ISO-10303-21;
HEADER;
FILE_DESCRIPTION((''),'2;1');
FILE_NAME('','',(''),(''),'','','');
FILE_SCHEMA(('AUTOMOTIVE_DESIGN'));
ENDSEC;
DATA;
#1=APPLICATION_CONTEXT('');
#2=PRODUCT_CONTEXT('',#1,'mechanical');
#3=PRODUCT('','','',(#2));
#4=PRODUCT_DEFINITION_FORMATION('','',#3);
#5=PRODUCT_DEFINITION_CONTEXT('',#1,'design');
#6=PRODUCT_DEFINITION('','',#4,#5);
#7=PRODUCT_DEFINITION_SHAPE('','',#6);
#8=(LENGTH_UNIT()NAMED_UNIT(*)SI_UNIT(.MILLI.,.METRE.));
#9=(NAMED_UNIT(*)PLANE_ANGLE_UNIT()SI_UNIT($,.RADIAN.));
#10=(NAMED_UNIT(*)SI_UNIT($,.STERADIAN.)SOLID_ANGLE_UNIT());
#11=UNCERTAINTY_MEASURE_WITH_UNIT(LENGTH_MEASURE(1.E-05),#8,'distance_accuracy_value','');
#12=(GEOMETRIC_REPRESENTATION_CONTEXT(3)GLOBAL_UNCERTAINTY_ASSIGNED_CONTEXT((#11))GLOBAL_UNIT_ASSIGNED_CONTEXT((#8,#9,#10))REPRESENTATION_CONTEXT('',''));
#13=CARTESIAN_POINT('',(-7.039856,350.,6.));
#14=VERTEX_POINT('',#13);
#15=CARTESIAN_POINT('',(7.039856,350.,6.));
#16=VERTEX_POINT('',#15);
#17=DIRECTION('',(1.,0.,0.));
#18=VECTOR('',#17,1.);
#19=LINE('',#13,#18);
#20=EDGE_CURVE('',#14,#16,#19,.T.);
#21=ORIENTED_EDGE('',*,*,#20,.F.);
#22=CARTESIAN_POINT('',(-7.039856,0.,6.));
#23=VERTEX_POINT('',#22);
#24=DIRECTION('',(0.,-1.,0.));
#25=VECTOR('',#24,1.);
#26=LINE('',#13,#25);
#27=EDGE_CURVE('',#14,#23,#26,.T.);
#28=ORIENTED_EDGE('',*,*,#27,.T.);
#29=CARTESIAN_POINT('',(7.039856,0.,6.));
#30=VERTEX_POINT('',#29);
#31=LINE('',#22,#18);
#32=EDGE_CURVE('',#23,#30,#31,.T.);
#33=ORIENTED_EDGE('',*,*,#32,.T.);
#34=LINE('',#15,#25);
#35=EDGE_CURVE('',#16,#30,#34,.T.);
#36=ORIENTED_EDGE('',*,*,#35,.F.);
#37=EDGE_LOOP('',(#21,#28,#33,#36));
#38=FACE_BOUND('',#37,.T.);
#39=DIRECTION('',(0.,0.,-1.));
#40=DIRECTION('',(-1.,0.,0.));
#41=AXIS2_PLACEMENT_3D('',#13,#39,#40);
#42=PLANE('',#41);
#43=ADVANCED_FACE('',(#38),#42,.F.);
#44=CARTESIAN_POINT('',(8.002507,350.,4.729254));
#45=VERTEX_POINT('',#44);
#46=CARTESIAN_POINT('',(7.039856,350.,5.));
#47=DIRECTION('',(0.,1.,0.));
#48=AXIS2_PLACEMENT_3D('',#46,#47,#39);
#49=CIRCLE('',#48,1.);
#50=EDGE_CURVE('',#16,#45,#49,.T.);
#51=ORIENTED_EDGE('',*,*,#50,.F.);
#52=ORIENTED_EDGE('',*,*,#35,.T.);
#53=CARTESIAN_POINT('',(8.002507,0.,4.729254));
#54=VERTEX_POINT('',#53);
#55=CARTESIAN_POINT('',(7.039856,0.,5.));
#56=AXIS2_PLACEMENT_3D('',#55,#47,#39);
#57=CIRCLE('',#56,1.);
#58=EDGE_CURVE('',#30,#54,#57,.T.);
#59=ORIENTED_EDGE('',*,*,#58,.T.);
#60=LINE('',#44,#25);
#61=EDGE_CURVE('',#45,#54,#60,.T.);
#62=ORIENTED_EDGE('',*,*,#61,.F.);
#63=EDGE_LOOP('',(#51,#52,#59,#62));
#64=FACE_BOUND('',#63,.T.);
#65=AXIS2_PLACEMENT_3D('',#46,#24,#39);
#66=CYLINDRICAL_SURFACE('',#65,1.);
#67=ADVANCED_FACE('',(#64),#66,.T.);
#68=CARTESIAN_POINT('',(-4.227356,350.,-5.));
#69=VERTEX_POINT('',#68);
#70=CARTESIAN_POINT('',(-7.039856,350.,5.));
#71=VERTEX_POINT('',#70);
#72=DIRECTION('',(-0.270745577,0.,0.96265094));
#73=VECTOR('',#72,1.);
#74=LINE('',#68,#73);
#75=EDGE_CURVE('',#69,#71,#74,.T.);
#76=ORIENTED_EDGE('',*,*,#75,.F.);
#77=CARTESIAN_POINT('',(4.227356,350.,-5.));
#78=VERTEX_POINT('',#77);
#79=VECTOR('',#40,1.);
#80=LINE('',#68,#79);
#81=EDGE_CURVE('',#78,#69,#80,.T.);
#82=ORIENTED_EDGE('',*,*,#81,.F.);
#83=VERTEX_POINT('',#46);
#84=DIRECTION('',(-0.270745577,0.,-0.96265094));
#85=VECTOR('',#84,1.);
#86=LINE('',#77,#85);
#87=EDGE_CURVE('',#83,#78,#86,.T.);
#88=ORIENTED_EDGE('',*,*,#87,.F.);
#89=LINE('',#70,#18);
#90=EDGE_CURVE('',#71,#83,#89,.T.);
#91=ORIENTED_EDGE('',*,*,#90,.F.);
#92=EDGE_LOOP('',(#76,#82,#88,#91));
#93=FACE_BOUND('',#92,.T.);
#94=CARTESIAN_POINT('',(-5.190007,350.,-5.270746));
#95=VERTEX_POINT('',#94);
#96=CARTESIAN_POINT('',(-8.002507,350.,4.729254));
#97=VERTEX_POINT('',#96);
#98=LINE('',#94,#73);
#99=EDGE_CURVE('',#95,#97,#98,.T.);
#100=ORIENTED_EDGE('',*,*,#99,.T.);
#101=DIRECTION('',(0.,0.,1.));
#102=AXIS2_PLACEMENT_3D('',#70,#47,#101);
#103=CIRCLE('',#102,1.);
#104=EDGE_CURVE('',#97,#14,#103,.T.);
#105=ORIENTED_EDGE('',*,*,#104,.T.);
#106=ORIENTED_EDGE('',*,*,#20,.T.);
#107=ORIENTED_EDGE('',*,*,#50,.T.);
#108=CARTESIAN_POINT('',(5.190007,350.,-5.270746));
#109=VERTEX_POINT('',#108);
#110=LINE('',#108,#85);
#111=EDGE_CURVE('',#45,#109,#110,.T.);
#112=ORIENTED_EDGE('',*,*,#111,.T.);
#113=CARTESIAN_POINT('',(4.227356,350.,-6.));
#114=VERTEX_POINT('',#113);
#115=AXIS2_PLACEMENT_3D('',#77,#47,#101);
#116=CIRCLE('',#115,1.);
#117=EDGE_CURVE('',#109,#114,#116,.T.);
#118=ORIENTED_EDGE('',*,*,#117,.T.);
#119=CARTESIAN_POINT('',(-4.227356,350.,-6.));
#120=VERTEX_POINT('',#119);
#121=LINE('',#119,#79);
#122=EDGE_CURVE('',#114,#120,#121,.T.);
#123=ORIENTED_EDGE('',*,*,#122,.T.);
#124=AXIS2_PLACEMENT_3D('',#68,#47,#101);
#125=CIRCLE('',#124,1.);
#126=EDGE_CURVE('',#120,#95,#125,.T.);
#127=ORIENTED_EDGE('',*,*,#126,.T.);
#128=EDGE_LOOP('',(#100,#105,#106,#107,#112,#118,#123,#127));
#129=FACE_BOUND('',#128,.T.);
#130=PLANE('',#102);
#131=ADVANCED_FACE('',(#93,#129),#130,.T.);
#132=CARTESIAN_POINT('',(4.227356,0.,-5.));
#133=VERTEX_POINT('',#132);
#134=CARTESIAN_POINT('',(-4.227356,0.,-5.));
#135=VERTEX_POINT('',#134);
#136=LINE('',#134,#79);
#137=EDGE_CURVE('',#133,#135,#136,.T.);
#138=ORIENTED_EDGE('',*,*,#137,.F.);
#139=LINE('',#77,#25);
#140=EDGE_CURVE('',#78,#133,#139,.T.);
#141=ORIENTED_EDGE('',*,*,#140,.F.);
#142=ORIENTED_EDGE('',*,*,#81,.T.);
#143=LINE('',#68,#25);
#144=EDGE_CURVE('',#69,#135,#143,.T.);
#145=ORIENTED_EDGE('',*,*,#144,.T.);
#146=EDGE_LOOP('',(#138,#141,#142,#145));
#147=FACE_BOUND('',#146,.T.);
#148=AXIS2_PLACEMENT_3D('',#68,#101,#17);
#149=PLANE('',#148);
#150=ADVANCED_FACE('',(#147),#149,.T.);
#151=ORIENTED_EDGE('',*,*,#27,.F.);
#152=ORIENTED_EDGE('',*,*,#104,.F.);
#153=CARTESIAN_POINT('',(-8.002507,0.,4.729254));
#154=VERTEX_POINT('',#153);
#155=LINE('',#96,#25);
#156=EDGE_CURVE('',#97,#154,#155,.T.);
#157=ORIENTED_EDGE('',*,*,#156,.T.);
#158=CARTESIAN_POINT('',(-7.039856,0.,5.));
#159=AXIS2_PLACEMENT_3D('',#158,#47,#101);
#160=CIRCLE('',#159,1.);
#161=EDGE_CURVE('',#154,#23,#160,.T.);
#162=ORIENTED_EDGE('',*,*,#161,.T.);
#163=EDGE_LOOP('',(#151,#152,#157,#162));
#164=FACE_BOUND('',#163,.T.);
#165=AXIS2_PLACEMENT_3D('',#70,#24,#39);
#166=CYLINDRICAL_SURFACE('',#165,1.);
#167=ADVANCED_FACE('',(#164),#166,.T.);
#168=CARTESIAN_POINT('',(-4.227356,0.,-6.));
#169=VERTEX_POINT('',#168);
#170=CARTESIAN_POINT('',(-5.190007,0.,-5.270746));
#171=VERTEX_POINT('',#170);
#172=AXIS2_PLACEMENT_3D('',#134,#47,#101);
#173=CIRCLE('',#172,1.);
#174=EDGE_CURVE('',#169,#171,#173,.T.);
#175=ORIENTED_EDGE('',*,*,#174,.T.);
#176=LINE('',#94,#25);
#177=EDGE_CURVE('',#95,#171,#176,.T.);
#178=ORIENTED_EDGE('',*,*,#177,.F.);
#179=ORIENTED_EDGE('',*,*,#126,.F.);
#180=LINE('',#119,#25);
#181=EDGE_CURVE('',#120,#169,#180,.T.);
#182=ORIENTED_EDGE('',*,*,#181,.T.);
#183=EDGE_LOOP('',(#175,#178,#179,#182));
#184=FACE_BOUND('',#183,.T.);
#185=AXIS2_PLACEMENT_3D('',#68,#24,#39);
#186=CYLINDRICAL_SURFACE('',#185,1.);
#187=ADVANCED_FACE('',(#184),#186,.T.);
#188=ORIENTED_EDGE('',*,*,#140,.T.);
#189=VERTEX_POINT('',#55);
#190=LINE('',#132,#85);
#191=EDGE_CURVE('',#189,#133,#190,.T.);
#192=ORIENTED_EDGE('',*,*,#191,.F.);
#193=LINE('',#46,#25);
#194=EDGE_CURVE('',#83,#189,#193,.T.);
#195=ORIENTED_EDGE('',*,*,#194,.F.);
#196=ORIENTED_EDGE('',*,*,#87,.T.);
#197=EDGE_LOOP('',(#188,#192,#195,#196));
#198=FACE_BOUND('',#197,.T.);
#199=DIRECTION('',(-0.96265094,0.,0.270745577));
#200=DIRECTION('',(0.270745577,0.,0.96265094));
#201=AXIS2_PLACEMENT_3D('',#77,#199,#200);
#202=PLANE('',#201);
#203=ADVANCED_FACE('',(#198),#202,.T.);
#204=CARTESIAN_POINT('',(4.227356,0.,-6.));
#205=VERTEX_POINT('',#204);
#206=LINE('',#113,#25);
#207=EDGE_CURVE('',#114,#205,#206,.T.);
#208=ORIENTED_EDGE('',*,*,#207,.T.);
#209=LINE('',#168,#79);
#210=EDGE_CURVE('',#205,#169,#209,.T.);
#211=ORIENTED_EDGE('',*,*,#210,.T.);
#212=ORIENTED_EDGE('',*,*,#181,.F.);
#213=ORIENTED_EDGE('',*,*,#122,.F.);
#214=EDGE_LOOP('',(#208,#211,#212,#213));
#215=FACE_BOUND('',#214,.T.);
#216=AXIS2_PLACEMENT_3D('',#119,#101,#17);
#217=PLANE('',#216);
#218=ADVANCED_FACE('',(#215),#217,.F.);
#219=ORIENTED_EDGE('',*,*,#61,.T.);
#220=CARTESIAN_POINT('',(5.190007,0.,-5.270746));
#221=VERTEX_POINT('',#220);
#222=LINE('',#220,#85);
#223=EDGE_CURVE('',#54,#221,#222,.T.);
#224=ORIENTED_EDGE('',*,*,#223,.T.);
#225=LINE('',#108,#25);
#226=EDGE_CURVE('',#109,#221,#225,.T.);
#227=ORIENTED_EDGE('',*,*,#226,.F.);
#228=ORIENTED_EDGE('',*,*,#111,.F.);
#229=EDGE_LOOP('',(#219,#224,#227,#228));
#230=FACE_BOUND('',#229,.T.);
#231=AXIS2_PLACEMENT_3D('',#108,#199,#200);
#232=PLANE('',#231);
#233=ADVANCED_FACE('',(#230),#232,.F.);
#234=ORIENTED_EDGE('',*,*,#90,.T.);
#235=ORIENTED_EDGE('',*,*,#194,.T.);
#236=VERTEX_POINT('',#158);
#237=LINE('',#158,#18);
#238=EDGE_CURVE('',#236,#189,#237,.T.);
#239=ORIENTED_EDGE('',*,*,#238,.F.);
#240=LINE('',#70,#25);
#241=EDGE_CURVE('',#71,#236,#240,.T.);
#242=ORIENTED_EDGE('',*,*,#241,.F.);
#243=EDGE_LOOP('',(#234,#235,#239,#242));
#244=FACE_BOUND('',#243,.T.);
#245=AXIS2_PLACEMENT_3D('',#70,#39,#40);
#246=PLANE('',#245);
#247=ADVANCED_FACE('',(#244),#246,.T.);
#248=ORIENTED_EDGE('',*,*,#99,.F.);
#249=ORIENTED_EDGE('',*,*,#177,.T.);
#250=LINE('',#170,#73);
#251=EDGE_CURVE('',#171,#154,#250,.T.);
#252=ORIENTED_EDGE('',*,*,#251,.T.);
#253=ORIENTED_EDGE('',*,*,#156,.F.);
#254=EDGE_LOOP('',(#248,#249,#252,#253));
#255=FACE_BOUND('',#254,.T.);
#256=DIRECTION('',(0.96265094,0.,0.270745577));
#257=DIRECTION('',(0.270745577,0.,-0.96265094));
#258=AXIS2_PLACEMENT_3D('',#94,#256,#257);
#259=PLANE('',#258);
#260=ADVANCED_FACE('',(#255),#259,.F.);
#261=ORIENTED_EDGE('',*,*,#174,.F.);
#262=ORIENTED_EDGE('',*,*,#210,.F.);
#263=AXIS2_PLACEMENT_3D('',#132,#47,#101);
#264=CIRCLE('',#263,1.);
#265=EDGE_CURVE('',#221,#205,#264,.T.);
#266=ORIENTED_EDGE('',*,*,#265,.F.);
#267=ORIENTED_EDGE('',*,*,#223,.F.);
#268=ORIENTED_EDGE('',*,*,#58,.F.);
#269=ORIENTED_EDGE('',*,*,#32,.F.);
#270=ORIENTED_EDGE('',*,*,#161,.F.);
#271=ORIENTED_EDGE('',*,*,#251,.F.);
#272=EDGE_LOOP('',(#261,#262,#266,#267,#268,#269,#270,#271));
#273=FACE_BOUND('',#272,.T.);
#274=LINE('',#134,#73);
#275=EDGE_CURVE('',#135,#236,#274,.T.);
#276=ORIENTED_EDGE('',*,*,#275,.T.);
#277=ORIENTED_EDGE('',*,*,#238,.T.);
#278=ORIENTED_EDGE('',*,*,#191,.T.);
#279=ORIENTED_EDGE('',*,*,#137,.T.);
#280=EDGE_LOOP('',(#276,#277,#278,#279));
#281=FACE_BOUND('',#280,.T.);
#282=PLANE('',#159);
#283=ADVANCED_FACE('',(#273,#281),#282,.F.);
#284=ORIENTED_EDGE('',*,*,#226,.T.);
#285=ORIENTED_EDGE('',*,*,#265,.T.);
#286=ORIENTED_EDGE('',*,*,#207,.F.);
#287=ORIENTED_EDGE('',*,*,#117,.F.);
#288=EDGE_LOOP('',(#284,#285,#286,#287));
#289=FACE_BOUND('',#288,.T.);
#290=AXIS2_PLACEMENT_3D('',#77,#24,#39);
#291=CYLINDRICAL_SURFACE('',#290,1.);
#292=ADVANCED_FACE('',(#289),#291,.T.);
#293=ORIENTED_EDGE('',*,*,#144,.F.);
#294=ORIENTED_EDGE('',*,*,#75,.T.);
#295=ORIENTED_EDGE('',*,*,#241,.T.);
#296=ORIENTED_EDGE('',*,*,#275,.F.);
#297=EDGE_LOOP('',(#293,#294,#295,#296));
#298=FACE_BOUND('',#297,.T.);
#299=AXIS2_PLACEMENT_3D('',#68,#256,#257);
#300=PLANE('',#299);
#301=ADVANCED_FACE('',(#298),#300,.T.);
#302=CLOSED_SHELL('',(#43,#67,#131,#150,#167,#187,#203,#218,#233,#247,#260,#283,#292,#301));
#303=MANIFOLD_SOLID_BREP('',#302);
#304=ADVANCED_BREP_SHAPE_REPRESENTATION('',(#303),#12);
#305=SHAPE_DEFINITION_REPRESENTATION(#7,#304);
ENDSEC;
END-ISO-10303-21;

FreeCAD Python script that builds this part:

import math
import FreeCAD as App
import Part
import Sketcher
from FreeCAD import Vector


def add_polygon(sketch, points):
    """Adds a closed chain of lines whose ends are joined by coincident constraints."""
    first, n = sketch.GeometryCount, len(points)
    for a, b in zip(points, points[1:] + points[:1]):
        sketch.addGeometry(Part.LineSegment(App.Vector(*a, 0), App.Vector(*b, 0)), False)
    for i in range(n):
        sketch.addConstraint(Sketcher.Constraint("Coincident", first + i, 2, first + (i + 1) % n, 1))

doc = App.newDocument("Part")
body = doc.addObject("PartDesign::Body", "Body")

sketch1 = doc.addObject("Sketcher::SketchObject", "Sketch")
body.addObject(sketch1)
sketch1.AttachmentSupport = (doc.XZ_Plane, [""])
sketch1.MapMode = "FlatFace"
sketch1.addGeometry(Part.LineSegment(Vector(-7, 6, 0), Vector(7, 6, 0)), False)
sketch1.addGeometry(Part.ArcOfCircle(Part.Circle(Vector(7, 5, 0), Vector(0, 0, 1), 1), math.radians(-16), math.radians(90)), False)
sketch1.addGeometry(Part.LineSegment(Vector(8, 4.7, 0), Vector(5.2, -5.3, 0)), False)
sketch1.addGeometry(Part.ArcOfCircle(Part.Circle(Vector(4.2, -5, 0), Vector(0, 0, 1), 1), math.radians(-90), math.radians(-16)), False)
sketch1.addGeometry(Part.LineSegment(Vector(4.2, -6, 0), Vector(-4.2, -6, 0)), False)
sketch1.addGeometry(Part.ArcOfCircle(Part.Circle(Vector(-4.2, -5, 0), Vector(0, 0, 1), 1), math.radians(-164), math.radians(-90)), False)
sketch1.addGeometry(Part.LineSegment(Vector(-5.2, -5.3, 0), Vector(-8, 4.7, 0)), False)
sketch1.addGeometry(Part.ArcOfCircle(Part.Circle(Vector(-7, 5, 0), Vector(0, 0, 1), 1), math.radians(90), math.radians(196)), False)
add_polygon(sketch1, [(7, 5), (-7, 5), (-4.2, -5), (4.2, -5)])
sketch1.addConstraint(Sketcher.Constraint("Tangent", 0, 2, 1, 2))
sketch1.addConstraint(Sketcher.Constraint("Tangent", 1, 1, 2, 1))
sketch1.addConstraint(Sketcher.Constraint("Tangent", 2, 2, 3, 2))
sketch1.addConstraint(Sketcher.Constraint("Tangent", 3, 1, 4, 1))
sketch1.addConstraint(Sketcher.Constraint("Tangent", 4, 2, 5, 2))
sketch1.addConstraint(Sketcher.Constraint("Tangent", 5, 1, 6, 1))
sketch1.addConstraint(Sketcher.Constraint("Tangent", 6, 2, 7, 2))
sketch1.addConstraint(Sketcher.Constraint("Tangent", 7, 1, 0, 1))
sketch1.addConstraint(Sketcher.Constraint("Horizontal", 0))
sketch1.addConstraint(Sketcher.Constraint("Horizontal", 4))
sketch1.addConstraint(Sketcher.Constraint("Horizontal", 8))
sketch1.addConstraint(Sketcher.Constraint("Horizontal", 10))
sketch1.addConstraint(Sketcher.Constraint("Coincident", 8, 2, 7, 3))
sketch1.addConstraint(Sketcher.Constraint("Coincident", 9, 2, 5, 3))
sketch1.addConstraint(Sketcher.Constraint("Coincident", 10, 2, 3, 3))
sketch1.addConstraint(Sketcher.Constraint("Coincident", 11, 2, 1, 3))
sketch1.addConstraint(Sketcher.Constraint("Equal", 1, 3))
sketch1.addConstraint(Sketcher.Constraint("Symmetric", 2, 2, 5, 1, -2))
sketch1.addConstraint(Sketcher.Constraint("Radius", 1, 1.0))
sketch1.addConstraint(Sketcher.Constraint("DistanceY", -1, 1, 1, 3, 5.0))
sketch1.addConstraint(Sketcher.Constraint("DistanceY", 3, 3, -1, 1, 5.0))
sketch1.addConstraint(Sketcher.Constraint("DistanceX", 0, 1, 0, 2, 14.079711))
sketch1.addConstraint(Sketcher.Constraint("DistanceX", 4, 2, 4, 1, 8.454711))
pad1 = doc.addObject("PartDesign::Pad", "Pad")
body.addObject(pad1)
pad1.Profile = sketch1
pad1.Length = 350
pad1.Reversed = True

doc.recompute()
